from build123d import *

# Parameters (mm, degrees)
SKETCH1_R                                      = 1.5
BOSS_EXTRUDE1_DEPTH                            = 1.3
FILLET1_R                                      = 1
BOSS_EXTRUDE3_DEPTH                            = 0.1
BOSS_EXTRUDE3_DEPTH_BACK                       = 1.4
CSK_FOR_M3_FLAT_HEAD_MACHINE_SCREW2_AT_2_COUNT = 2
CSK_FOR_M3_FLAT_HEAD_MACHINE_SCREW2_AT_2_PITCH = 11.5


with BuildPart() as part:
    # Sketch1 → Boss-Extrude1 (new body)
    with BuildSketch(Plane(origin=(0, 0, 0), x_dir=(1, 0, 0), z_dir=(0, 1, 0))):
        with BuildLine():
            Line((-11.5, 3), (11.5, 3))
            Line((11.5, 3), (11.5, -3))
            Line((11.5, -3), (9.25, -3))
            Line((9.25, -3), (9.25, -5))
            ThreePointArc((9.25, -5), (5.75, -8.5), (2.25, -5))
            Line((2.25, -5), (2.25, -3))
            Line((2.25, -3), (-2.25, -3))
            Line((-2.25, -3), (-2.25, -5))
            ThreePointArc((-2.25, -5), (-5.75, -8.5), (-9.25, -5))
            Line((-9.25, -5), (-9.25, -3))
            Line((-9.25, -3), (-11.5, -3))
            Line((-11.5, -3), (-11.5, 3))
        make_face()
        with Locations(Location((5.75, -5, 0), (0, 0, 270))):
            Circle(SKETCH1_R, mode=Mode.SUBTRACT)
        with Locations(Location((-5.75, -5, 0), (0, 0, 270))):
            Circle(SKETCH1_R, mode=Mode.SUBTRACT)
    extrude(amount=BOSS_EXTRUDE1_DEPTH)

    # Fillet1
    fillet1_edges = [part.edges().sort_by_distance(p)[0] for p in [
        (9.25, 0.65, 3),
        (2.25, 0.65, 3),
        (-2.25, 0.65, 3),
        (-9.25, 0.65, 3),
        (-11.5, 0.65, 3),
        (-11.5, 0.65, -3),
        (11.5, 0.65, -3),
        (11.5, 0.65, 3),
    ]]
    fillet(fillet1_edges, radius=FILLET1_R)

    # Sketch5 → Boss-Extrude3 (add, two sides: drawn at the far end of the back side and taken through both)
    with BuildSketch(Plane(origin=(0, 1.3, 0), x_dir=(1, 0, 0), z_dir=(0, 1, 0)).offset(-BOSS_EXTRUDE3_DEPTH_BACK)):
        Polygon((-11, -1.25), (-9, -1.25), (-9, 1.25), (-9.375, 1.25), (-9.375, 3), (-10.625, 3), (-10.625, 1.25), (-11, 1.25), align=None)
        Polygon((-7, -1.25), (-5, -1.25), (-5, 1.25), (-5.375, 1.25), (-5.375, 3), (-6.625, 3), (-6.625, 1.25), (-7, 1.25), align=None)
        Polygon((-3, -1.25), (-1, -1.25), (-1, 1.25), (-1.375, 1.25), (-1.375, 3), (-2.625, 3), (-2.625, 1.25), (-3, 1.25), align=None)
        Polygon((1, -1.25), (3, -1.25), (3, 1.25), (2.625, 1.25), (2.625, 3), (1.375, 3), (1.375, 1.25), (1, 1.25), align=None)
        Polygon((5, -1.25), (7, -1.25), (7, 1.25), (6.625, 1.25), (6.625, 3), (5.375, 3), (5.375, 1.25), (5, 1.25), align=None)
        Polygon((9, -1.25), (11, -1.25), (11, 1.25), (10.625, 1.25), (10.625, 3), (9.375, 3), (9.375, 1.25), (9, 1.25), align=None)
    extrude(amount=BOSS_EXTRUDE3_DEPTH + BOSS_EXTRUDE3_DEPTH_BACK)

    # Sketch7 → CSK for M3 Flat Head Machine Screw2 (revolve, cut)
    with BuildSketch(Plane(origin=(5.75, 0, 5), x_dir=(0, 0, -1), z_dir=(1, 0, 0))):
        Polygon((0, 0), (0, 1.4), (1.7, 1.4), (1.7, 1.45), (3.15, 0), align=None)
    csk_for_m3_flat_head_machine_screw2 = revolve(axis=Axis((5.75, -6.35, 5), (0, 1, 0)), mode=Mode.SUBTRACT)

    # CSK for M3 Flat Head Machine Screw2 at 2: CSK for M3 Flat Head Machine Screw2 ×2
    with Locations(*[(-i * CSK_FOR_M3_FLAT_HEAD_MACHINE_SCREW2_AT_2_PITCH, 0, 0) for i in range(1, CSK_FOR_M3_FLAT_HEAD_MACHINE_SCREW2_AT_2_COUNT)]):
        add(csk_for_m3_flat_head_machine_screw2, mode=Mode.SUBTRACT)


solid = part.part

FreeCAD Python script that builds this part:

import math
import FreeCAD as App
import Part
import Sketcher
Q = App.Units.Quantity


def edges_at(feature, points):
    """Names of the edges that pass closest to the given points."""
    edges = feature.Shape.Edges
    near = lambda p: min(range(len(edges)), key=lambda i: edges[i].distToShape(Part.Vertex(*p))[0])
    return sorted({f"Edge{near(p) + 1}" for p in points})

doc = App.newDocument("Part")
params = doc.addObject("Spreadsheet::Sheet", "Params")
for row, (alias, value) in enumerate([
    ("sketch1_diameter", "3 mm"),
    ("sketch1_radius", "3.5 mm"),
    ("sketch1_width", "23 mm"),
    ("sketch1_height", "6 mm"),
    ("sketch1_height2", "2 mm"),
    ("pad1_length", "1.3 mm"),
    ("fillet_radius", "1 mm"),
    ("sketch2_width", "2 mm"),
    ("sketch2_height", "2.5 mm"),
    ("sketch2_width2", "1.25 mm"),
    ("pad2_length", "0.1 mm"),
    ("pad2_length2", "1.4 mm"),
    ("sketch3_width", "1.4 mm"),
    ("sketch3_height", "1.7 mm"),
    ("sketch3_width2", "0.05 mm"),
    ("groove_angle", "360 deg"),
    ("linearpattern_pitch", "11.5 mm"),
], start=1):
    params.set(f"A{row}", alias)
    params.set(f"B{row}", "=" + value)
    params.setAlias(f"B{row}", alias)

body = doc.addObject("PartDesign::Body", "Body")

# Sketch on XZ plane
sketch1 = body.newObject("Sketcher::SketchObject", "Sketch")
sketch1.AttachmentSupport = (doc.getObject("XZ_Plane"), [""])
sketch1.MapMode = "FlatFace"
sketch1.addGeometry(Part.LineSegment(App.Vector(11.5, -3, 0), App.Vector(-11.5, -3, 0)), False)
sketch1.addGeometry(Part.LineSegment(App.Vector(-11.5, -3, 0), App.Vector(-11.5, 3, 0)), False)
sketch1.addGeometry(Part.LineSegment(App.Vector(-11.5, 3, 0), App.Vector(-9.25, 3, 0)), False)
sketch1.addGeometry(Part.LineSegment(App.Vector(-9.25, 3, 0), App.Vector(-9.25, 5, 0)), False)
sketch1.addGeometry(Part.ArcOfCircle(Part.Circle(App.Vector(-5.75, 5, 0), App.Vector(0, 0, 1), 3.5), math.radians(0), math.radians(180)), False)
sketch1.addGeometry(Part.LineSegment(App.Vector(-2.25, 5, 0), App.Vector(-2.25, 3, 0)), False)
sketch1.addGeometry(Part.LineSegment(App.Vector(-2.25, 3, 0), App.Vector(2.25, 3, 0)), False)
sketch1.addGeometry(Part.LineSegment(App.Vector(2.25, 3, 0), App.Vector(2.25, 5, 0)), False)
sketch1.addGeometry(Part.ArcOfCircle(Part.Circle(App.Vector(5.75, 5, 0), App.Vector(0, 0, 1), 3.5), math.radians(0), math.radians(180)), False)
sketch1.addGeometry(Part.LineSegment(App.Vector(9.25, 5, 0), App.Vector(9.25, 3, 0)), False)
sketch1.addGeometry(Part.LineSegment(App.Vector(9.25, 3, 0), App.Vector(11.5, 3, 0)), False)
sketch1.addGeometry(Part.LineSegment(App.Vector(11.5, 3, 0), App.Vector(11.5, -3, 0)), False)
sketch1.addGeometry(Part.Circle(App.Vector(5.75, 5, 0), App.Vector(0, 0, 1), 1.5), False)
sketch1.addGeometry(Part.Circle(App.Vector(-5.75, 5, 0), App.Vector(0, 0, 1), 1.5), False)
sketch1.addConstraint(Sketcher.Constraint("Coincident", 0, 2, 1, 1))
sketch1.addConstraint(Sketcher.Constraint("Coincident", 1, 2, 2, 1))
sketch1.addConstraint(Sketcher.Constraint("Coincident", 2, 2, 3, 1))
sketch1.addConstraint(Sketcher.Constraint("Tangent", 3, 2, 4, 2))
sketch1.addConstraint(Sketcher.Constraint("Tangent", 4, 1, 5, 1))
sketch1.addConstraint(Sketcher.Constraint("Coincident", 5, 2, 6, 1))
sketch1.addConstraint(Sketcher.Constraint("Coincident", 6, 2, 7, 1))
sketch1.addConstraint(Sketcher.Constraint("Tangent", 7, 2, 8, 2))
sketch1.addConstraint(Sketcher.Constraint("Tangent", 8, 1, 9, 1))
sketch1.addConstraint(Sketcher.Constraint("Coincident", 9, 2, 10, 1))
sketch1.addConstraint(Sketcher.Constraint("Coincident", 10, 2, 11, 1))
sketch1.addConstraint(Sketcher.Constraint("Coincident", 11, 2, 0, 1))
sketch1.addConstraint(Sketcher.Constraint("Horizontal", 0))
sketch1.addConstraint(Sketcher.Constraint("Vertical", 1))
sketch1.addConstraint(Sketcher.Constraint("Horizontal", 2))
sketch1.addConstraint(Sketcher.Constraint("Vertical", 3))
sketch1.addConstraint(Sketcher.Constraint("Vertical", 5))
sketch1.addConstraint(Sketcher.Constraint("Horizontal", 6))
sketch1.addConstraint(Sketcher.Constraint("Vertical", 7))
sketch1.addConstraint(Sketcher.Constraint("Vertical", 9))
sketch1.addConstraint(Sketcher.Constraint("Horizontal", 10))
sketch1.addConstraint(Sketcher.Constraint("Vertical", 11))
sketch1.addConstraint(Sketcher.Constraint("Coincident", 12, 3, 8, 3))
sketch1.addConstraint(Sketcher.Constraint("Coincident", 13, 3, 4, 3))
sketch1.addConstraint(Sketcher.Constraint("Equal", 4, 8))
sketch1.addConstraint(Sketcher.Constraint("Equal", 12, 13))
sketch1.addConstraint(Sketcher.Constraint("Symmetric", 0, 2, 10, 2, -1, 1))
sketch1.addConstraint(Sketcher.Constraint("Symmetric", 4, 3, 8, 3, -2))
sketch1.addConstraint(Sketcher.Constraint("Horizontal", 2, 2, 5, 2))
sketch1.addConstraint(Sketcher.Constraint("Horizontal", 6, 2, 9, 2))
sketch1.addConstraint(Sketcher.Constraint("Diameter", 12, 3.0))
sketch1.addConstraint(Sketcher.Constraint("Radius", 4, 3.5))
sketch1.addConstraint(Sketcher.Constraint("DistanceX", 0, 2, 0, 1, 23.0))
sketch1.addConstraint(Sketcher.Constraint("DistanceY", 1, 1, 1, 2, 6.0))
sketch1.addConstraint(Sketcher.Constraint("DistanceY", 3, 1, 3, 2, 2.0))
sketch1.addConstraint(Sketcher.Constraint("DistanceX", 6, 1, 6, 2, 4.5))
sketch1.setExpression("Constraints[30]", "Params.sketch1_diameter")
sketch1.setExpression("Constraints[31]", "Params.sketch1_radius")
sketch1.setExpression("Constraints[32]", "Params.sketch1_width")
sketch1.setExpression("Constraints[33]", "Params.sketch1_height")
sketch1.setExpression("Constraints[34]", "Params.sketch1_height2")
pad1 = body.newObject("PartDesign::Pad", "Pad")
pad1.Profile = sketch1
pad1.setExpression("Length", "Params.pad1_length")
pad1.Reversed = True
doc.recompute()

fillet = body.newObject("PartDesign::Fillet", "Fillet")
fillet.Base = (pad1, edges_at(pad1, [
    (9.25, 0.65, 3),
    (2.25, 0.65, 3),
    (-2.25, 0.65, 3),
    (-9.25, 0.65, 3),
    (-11.5, 0.65, 3),
    (-11.5, 0.65, -3),
    (11.5, 0.65, -3),
    (11.5, 0.65, 3),
]))
fillet.setExpression("Radius", "Params.fillet_radius")

# Sketch on XZ plane
sketch2 = body.newObject("Sketcher::SketchObject", "Sketch001")
sketch2.AttachmentSupport = (doc.getObject("XZ_Plane"), [""])
sketch2.MapMode = "FlatFace"
sketch2.AttachmentOffset = App.Placement(App.Vector(0, 0, -1.3), App.Rotation())
sketch2.addGeometry(Part.LineSegment(App.Vector(-11, 1.25, 0), App.Vector(-9, 1.25, 0)), False)
sketch2.addGeometry(Part.LineSegment(App.Vector(-9, 1.25, 0), App.Vector(-9, -1.25, 0)), False)
sketch2.addGeometry(Part.LineSegment(App.Vector(-9, -1.25, 0), App.Vector(-9.375, -1.25, 0)), False)
sketch2.addGeometry(Part.LineSegment(App.Vector(-9.375, -1.25, 0), App.Vector(-9.375, -3, 0)), False)
sketch2.addGeometry(Part.LineSegment(App.Vector(-9.375, -3, 0), App.Vector(-10.625, -3, 0)), False)
sketch2.addGeometry(Part.LineSegment(App.Vector(-10.625, -3, 0), App.Vector(-10.625, -1.25, 0)), False)
sketch2.addGeometry(Part.LineSegment(App.Vector(-10.625, -1.25, 0), App.Vector(-11, -1.25, 0)), False)
sketch2.addGeometry(Part.LineSegment(App.Vector(-11, -1.25, 0), App.Vector(-11, 1.25, 0)), False)
sketch2.addGeometry(Part.LineSegment(App.Vector(-7, 1.25, 0), App.Vector(-5, 1.25, 0)), False)
sketch2.addGeometry(Part.LineSegment(App.Vector(-5, 1.25, 0), App.Vector(-5, -1.25, 0)), False)
sketch2.addGeometry(Part.LineSegment(App.Vector(-5, -1.25, 0), App.Vector(-5.375, -1.25, 0)), False)
sketch2.addGeometry(Part.LineSegment(App.Vector(-5.375, -1.25, 0), App.Vector(-5.375, -3, 0)), False)
sketch2.addGeometry(Part.LineSegment(App.Vector(-5.375, -3, 0), App.Vector(-6.625, -3, 0)), False)
sketch2.addGeometry(Part.LineSegment(App.Vector(-6.625, -3, 0), App.Vector(-6.625, -1.25, 0)), False)
sketch2.addGeometry(Part.LineSegment(App.Vector(-6.625, -1.25, 0), App.Vector(-7, -1.25, 0)), False)
sketch2.addGeometry(Part.LineSegment(App.Vector(-7, -1.25, 0), App.Vector(-7, 1.25, 0)), False)
sketch2.addGeometry(Part.LineSegment(App.Vector(-3, 1.25, 0), App.Vector(-1, 1.25, 0)), False)
sketch2.addGeometry(Part.LineSegment(App.Vector(-1, 1.25, 0), App.Vector(-1, -1.25, 0)), False)
sketch2.addGeometry(Part.LineSegment(App.Vector(-1, -1.25, 0), App.Vector(-1.375, -1.25, 0)), False)
sketch2.addGeometry(Part.LineSegment(App.Vector(-1.375, -1.25, 0), App.Vector(-1.375, -3, 0)), False)
sketch2.addGeometry(Part.LineSegment(App.Vector(-1.375, -3, 0), App.Vector(-2.625, -3, 0)), False)
sketch2.addGeometry(Part.LineSegment(App.Vector(-2.625, -3, 0), App.Vector(-2.625, -1.25, 0)), False)
sketch2.addGeometry(Part.LineSegment(App.Vector(-2.625, -1.25, 0), App.Vector(-3, -1.25, 0)), False)
sketch2.addGeometry(Part.LineSegment(App.Vector(-3, -1.25, 0), App.Vector(-3, 1.25, 0)), False)
sketch2.addGeometry(Part.LineSegment(App.Vector(1, 1.25, 0), App.Vector(3, 1.25, 0)), False)
sketch2.addGeometry(Part.LineSegment(App.Vector(3, 1.25, 0), App.Vector(3, -1.25, 0)), False)
sketch2.addGeometry(Part.LineSegment(App.Vector(3, -1.25, 0), App.Vector(2.625, -1.25, 0)), False)
sketch2.addGeometry(Part.LineSegment(App.Vector(2.625, -1.25, 0), App.Vector(2.625, -3, 0)), False)
sketch2.addGeometry(Part.LineSegment(App.Vector(2.625, -3, 0), App.Vector(1.375, -3, 0)), False)
sketch2.addGeometry(Part.LineSegment(App.Vector(1.375, -3, 0), App.Vector(1.375, -1.25, 0)), False)
sketch2.addGeometry(Part.LineSegment(App.Vector(1.375, -1.25, 0), App.Vector(1, -1.25, 0)), False)
sketch2.addGeometry(Part.LineSegment(App.Vector(1, -1.25, 0), App.Vector(1, 1.25, 0)), False)
sketch2.addGeometry(Part.LineSegment(App.Vector(5, 1.25, 0), App.Vector(7, 1.25, 0)), False)
sketch2.addGeometry(Part.LineSegment(App.Vector(7, 1.25, 0), App.Vector(7, -1.25, 0)), False)
sketch2.addGeometry(Part.LineSegment(App.Vector(7, -1.25, 0), App.Vector(6.625, -1.25, 0)), False)
sketch2.addGeometry(Part.LineSegment(App.Vector(6.625, -1.25, 0), App.Vector(6.625, -3, 0)), False)
sketch2.addGeometry(Part.LineSegment(App.Vector(6.625, -3, 0), App.Vector(5.375, -3, 0)), False)
sketch2.addGeometry(Part.LineSegment(App.Vector(5.375, -3, 0), App.Vector(5.375, -1.25, 0)), False)
sketch2.addGeometry(Part.LineSegment(App.Vector(5.375, -1.25, 0), App.Vector(5, -1.25, 0)), False)
sketch2.addGeometry(Part.LineSegment(App.Vector(5, -1.25, 0), App.Vector(5, 1.25, 0)), False)
sketch2.addGeometry(Part.LineSegment(App.Vector(9, 1.25, 0), App.Vector(11, 1.25, 0)), False)
sketch2.addGeometry(Part.LineSegment(App.Vector(11, 1.25, 0), App.Vector(11, -1.25, 0)), False)
sketch2.addGeometry(Part.LineSegment(App.Vector(11, -1.25, 0), App.Vector(10.625, -1.25, 0)), False)
sketch2.addGeometry(Part.LineSegment(App.Vector(10.625, -1.25, 0), App.Vector(10.625, -3, 0)), False)
sketch2.addGeometry(Part.LineSegment(App.Vector(10.625, -3, 0), App.Vector(9.375, -3, 0)), False)
sketch2.addGeometry(Part.LineSegment(App.Vector(9.375, -3, 0), App.Vector(9.375, -1.25, 0)), False)
sketch2.addGeometry(Part.LineSegment(App.Vector(9.375, -1.25, 0), App.Vector(9, -1.25, 0)), False)
sketch2.addGeometry(Part.LineSegment(App.Vector(9, -1.25, 0), App.Vector(9, 1.25, 0)), False)
sketch2.addConstraint(Sketcher.Constraint("Coincident", 0, 2, 1, 1))
sketch2.addConstraint(Sketcher.Constraint("Coincident", 1, 2, 2, 1))
sketch2.addConstraint(Sketcher.Constraint("Coincident", 2, 2, 3, 1))
sketch2.addConstraint(Sketcher.Constraint("Coincident", 3, 2, 4, 1))
sketch2.addConstraint(Sketcher.Constraint("Coincident", 4, 2, 5, 1))
sketch2.addConstraint(Sketcher.Constraint("Coincident", 5, 2, 6, 1))
sketch2.addConstraint(Sketcher.Constraint("Coincident", 6, 2, 7, 1))
sketch2.addConstraint(Sketcher.Constraint("Coincident", 7, 2, 0, 1))
sketch2.addConstraint(Sketcher.Constraint("Coincident", 8, 2, 9, 1))
sketch2.addConstraint(Sketcher.Constraint("Coincident", 9, 2, 10, 1))
sketch2.addConstraint(Sketcher.Constraint("Coincident", 10, 2, 11, 1))
sketch2.addConstraint(Sketcher.Constraint("Coincident", 11, 2, 12, 1))
sketch2.addConstraint(Sketcher.Constraint("Coincident", 12, 2, 13, 1))
sketch2.addConstraint(Sketcher.Constraint("Coincident", 13, 2, 14, 1))
sketch2.addConstraint(Sketcher.Constraint("Coincident", 14, 2, 15, 1))
sketch2.addConstraint(Sketcher.Constraint("Coincident", 15, 2, 8, 1))
sketch2.addConstraint(Sketcher.Constraint("Coincident", 16, 2, 17, 1))
sketch2.addConstraint(Sketcher.Constraint("Coincident", 17, 2, 18, 1))
sketch2.addConstraint(Sketcher.Constraint("Coincident", 18, 2, 19, 1))
sketch2.addConstraint(Sketcher.Constraint("Coincident", 19, 2, 20, 1))
sketch2.addConstraint(Sketcher.Constraint("Coincident", 20, 2, 21, 1))
sketch2.addConstraint(Sketcher.Constraint("Coincident", 21, 2, 22, 1))
sketch2.addConstraint(Sketcher.Constraint("Coincident", 22, 2, 23, 1))
sketch2.addConstraint(Sketcher.Constraint("Coincident", 23, 2, 16, 1))
sketch2.addConstraint(Sketcher.Constraint("Coincident", 24, 2, 25, 1))
sketch2.addConstraint(Sketcher.Constraint("Coincident", 25, 2, 26, 1))
sketch2.addConstraint(Sketcher.Constraint("Coincident", 26, 2, 27, 1))
sketch2.addConstraint(Sketcher.Constraint("Coincident", 27, 2, 28, 1))
sketch2.addConstraint(Sketcher.Constraint("Coincident", 28, 2, 29, 1))
sketch2.addConstraint(Sketcher.Constraint("Coincident", 29, 2, 30, 1))
sketch2.addConstraint(Sketcher.Constraint("Coincident", 30, 2, 31, 1))
sketch2.addConstraint(Sketcher.Constraint("Coincident", 31, 2, 24, 1))
sketch2.addConstraint(Sketcher.Constraint("Coincident", 32, 2, 33, 1))
sketch2.addConstraint(Sketcher.Constraint("Coincident", 33, 2, 34, 1))
sketch2.addConstraint(Sketcher.Constraint("Coincident", 34, 2, 35, 1))
sketch2.addConstraint(Sketcher.Constraint("Coincident", 35, 2, 36, 1))
sketch2.addConstraint(Sketcher.Constraint("Coincident", 36, 2, 37, 1))
sketch2.addConstraint(Sketcher.Constraint("Coincident", 37, 2, 38, 1))
sketch2.addConstraint(Sketcher.Constraint("Coincident", 38, 2, 39, 1))
sketch2.addConstraint(Sketcher.Constraint("Coincident", 39, 2, 32, 1))
sketch2.addConstraint(Sketcher.Constraint("Coincident", 40, 2, 41, 1))
sketch2.addConstraint(Sketcher.Constraint("Coincident", 41, 2, 42, 1))
sketch2.addConstraint(Sketcher.Constraint("Coincident", 42, 2, 43, 1))
sketch2.addConstraint(Sketcher.Constraint("Coincident", 43, 2, 44, 1))
sketch2.addConstraint(Sketcher.Constraint("Coincident", 44, 2, 45, 1))
sketch2.addConstraint(Sketcher.Constraint("Coincident", 45, 2, 46, 1))
sketch2.addConstraint(Sketcher.Constraint("Coincident", 46, 2, 47, 1))
sketch2.addConstraint(Sketcher.Constraint("Coincident", 47, 2, 40, 1))
sketch2.addConstraint(Sketcher.Constraint("Horizontal", 0))
sketch2.addConstraint(Sketcher.Constraint("Vertical", 1))
sketch2.addConstraint(Sketcher.Constraint("Horizontal", 2))
sketch2.addConstraint(Sketcher.Constraint("Vertical", 3))
sketch2.addConstraint(Sketcher.Constraint("Horizontal", 4))
sketch2.addConstraint(Sketcher.Constraint("Vertical", 5))
sketch2.addConstraint(Sketcher.Constraint("Horizontal", 6))
sketch2.addConstraint(Sketcher.Constraint("Vertical", 7))
sketch2.addConstraint(Sketcher.Constraint("Horizontal", 8))
sketch2.addConstraint(Sketcher.Constraint("Vertical", 9))
sketch2.addConstraint(Sketcher.Constraint("Horizontal", 10))
sketch2.addConstraint(Sketcher.Constraint("Vertical", 11))
sketch2.addConstraint(Sketcher.Constraint("Horizontal", 12))
sketch2.addConstraint(Sketcher.Constraint("Vertical", 13))
sketch2.addConstraint(Sketcher.Constraint("Horizontal", 14))
sketch2.addConstraint(Sketcher.Constraint("Vertical", 15))
sketch2.addConstraint(Sketcher.Constraint("Horizontal", 16))
sketch2.addConstraint(Sketcher.Constraint("Vertical", 17))
sketch2.addConstraint(Sketcher.Constraint("Horizontal", 18))
sketch2.addConstraint(Sketcher.Constraint("Vertical", 19))
sketch2.addConstraint(Sketcher.Constraint("Horizontal", 20))
sketch2.addConstraint(Sketcher.Constraint("Vertical", 21))
sketch2.addConstraint(Sketcher.Constraint("Horizontal", 22))
sketch2.addConstraint(Sketcher.Constraint("Vertical", 23))
sketch2.addConstraint(Sketcher.Constraint("Horizontal", 24))
sketch2.addConstraint(Sketcher.Constraint("Vertical", 25))
sketch2.addConstraint(Sketcher.Constraint("Horizontal", 26))
sketch2.addConstraint(Sketcher.Constraint("Vertical", 27))
sketch2.addConstraint(Sketcher.Constraint("Horizontal", 28))
sketch2.addConstraint(Sketcher.Constraint("Vertical", 29))
sketch2.addConstraint(Sketcher.Constraint("Horizontal", 30))
sketch2.addConstraint(Sketcher.Constraint("Vertical", 31))
sketch2.addConstraint(Sketcher.Constraint("Horizontal", 32))
sketch2.addConstraint(Sketcher.Constraint("Vertical", 33))
sketch2.addConstraint(Sketcher.Constraint("Horizontal", 34))
sketch2.addConstraint(Sketcher.Constraint("Vertical", 35))
sketch2.addConstraint(Sketcher.Constraint("Horizontal", 36))
sketch2.addConstraint(Sketcher.Constraint("Vertical", 37))
sketch2.addConstraint(Sketcher.Constraint("Horizontal", 38))
sketch2.addConstraint(Sketcher.Constraint("Vertical", 39))
sketch2.addConstraint(Sketcher.Constraint("Horizontal", 40))
sketch2.addConstraint(Sketcher.Constraint("Vertical", 41))
sketch2.addConstraint(Sketcher.Constraint("Horizontal", 42))
sketch2.addConstraint(Sketcher.Constraint("Vertical", 43))
sketch2.addConstraint(Sketcher.Constraint("Horizontal", 44))
sketch2.addConstraint(Sketcher.Constraint("Vertical", 45))
sketch2.addConstraint(Sketcher.Constraint("Horizontal", 46))
sketch2.addConstraint(Sketcher.Constraint("Vertical", 47))
sketch2.addConstraint(Sketcher.Constraint("Symmetric", 22, 2, 24, 2, -1, 1))
sketch2.addConstraint(Sketcher.Constraint("Symmetric", 16, 2, 30, 2, -1, 1))
sketch2.addConstraint(Sketcher.Constraint("Symmetric", 14, 2, 32, 2, -1, 1))
sketch2.addConstraint(Sketcher.Constraint("Symmetric", 8, 2, 38, 2, -1, 1))
sketch2.addConstraint(Sketcher.Constraint("Symmetric", 6, 2, 40, 2, -1, 1))
sketch2.addConstraint(Sketcher.Constraint("Symmetric", 0, 2, 46, 2, -1, 1))
sketch2.addConstraint(Sketcher.Constraint("Symmetric", 21, 2, 26, 2, -2))
sketch2.addConstraint(Sketcher.Constraint("Symmetric", 19, 2, 28, 2, -2))
sketch2.addConstraint(Sketcher.Constraint("Symmetric", 13, 2, 34, 2, -2))
sketch2.addConstraint(Sketcher.Constraint("Symmetric", 11, 2, 36, 2, -2))
sketch2.addConstraint(Sketcher.Constraint("Symmetric", 5, 2, 42, 2, -2))
sketch2.addConstraint(Sketcher.Constraint("Symmetric", 3, 2, 44, 2, -2))
sketch2.addConstraint(Sketcher.Constraint("Horizontal", 2, 2, 5, 2))
sketch2.addConstraint(Sketcher.Constraint("Horizontal", 7, 2, 8, 2))
sketch2.addConstraint(Sketcher.Constraint("Horizontal", 6, 2, 9, 2))
sketch2.addConstraint(Sketcher.Constraint("Horizontal", 4, 2, 11, 2))
sketch2.addConstraint(Sketcher.Constraint("Horizontal", 10, 2, 13, 2))
sketch2.addConstraint(Sketcher.Constraint("Horizontal", 15, 2, 16, 2))
sketch2.addConstraint(Sketcher.Constraint("Horizontal", 14, 2, 17, 2))
sketch2.addConstraint(Sketcher.Constraint("Horizontal", 12, 2, 19, 2))
sketch2.addConstraint(Sketcher.Constraint("Horizontal", 18, 2, 21, 2))
sketch2.addConstraint(Sketcher.Constraint("Horizontal", 23, 2, 24, 2))
sketch2.addConstraint(Sketcher.Constraint("Equal", 2, 6))
sketch2.addConstraint(Sketcher.Constraint("Equal", 0, 8))
sketch2.addConstraint(Sketcher.Constraint("Equal", 6, 10))
sketch2.addConstraint(Sketcher.Constraint("Equal", 4, 12))
sketch2.addConstraint(Sketcher.Constraint("Equal", 8, 16))
sketch2.addConstraint(Sketcher.Constraint("Equal", 14, 18))
sketch2.addConstraint(Sketcher.Constraint("Equal", 12, 20))
sketch2.addConstraint(Sketcher.Constraint("DistanceX", 0, 1, 0, 2, 2.0))
sketch2.addConstraint(Sketcher.Constraint("DistanceY", 1, 2, 1, 1, 2.5))
sketch2.addConstraint(Sketcher.Constraint("DistanceX", 0, 2, -1, 1, 9.0))
sketch2.addConstraint(Sketcher.Constraint("DistanceY", 3, 2, -1, 1, 3.0))
sketch2.addConstraint(Sketcher.Constraint("DistanceX", 8, 2, -1, 1, 5.0))
sketch2.addConstraint(Sketcher.Constraint("DistanceX", 16, 2, -1, 1, 1.0))
sketch2.addConstraint(Sketcher.Constraint("DistanceX", 4, 2, 4, 1, 1.25))
sketch2.setExpression("Constraints[125]", "Params.sketch2_width")
sketch2.setExpression("Constraints[126]", "Params.sketch2_height")
sketch2.setExpression("Constraints[131]", "Params.sketch2_width2")
pad2 = body.newObject("PartDesign::Pad", "Pad001")
pad2.Profile = sketch2
pad2.Type = "TwoLengths"
pad2.setExpression("Length", "Params.pad2_length")
pad2.setExpression("Length2", "Params.pad2_length2")
pad2.Reversed = True

# Sketch on YZ plane
sketch3 = body.newObject("Sketcher::SketchObject", "Sketch002")
sketch3.AttachmentSupport = (doc.getObject("YZ_Plane"), [""])
sketch3.MapMode = "FlatFace"
sketch3.AttachmentOffset = App.Placement(App.Vector(0, 0, 5.75), App.Rotation())
sketch3.addGeometry(Part.LineSegment(App.Vector(1.4, 5, 0), App.Vector(0, 5, 0)), False)
sketch3.addGeometry(Part.LineSegment(App.Vector(0, 5, 0), App.Vector(0, 1.85, 0)), False)
sketch3.addGeometry(Part.LineSegment(App.Vector(0, 1.85, 0), App.Vector(1.45, 3.3, 0)), False)
sketch3.addGeometry(Part.LineSegment(App.Vector(1.45, 3.3, 0), App.Vector(1.4, 3.3, 0)), False)
sketch3.addGeometry(Part.LineSegment(App.Vector(1.4, 3.3, 0), App.Vector(1.4, 5, 0)), False)
sketch3.addGeometry(Part.LineSegment(App.Vector(0, 5, 0), App.Vector(1.45, 5, 0)), True)  # axis
sketch3.addConstraint(Sketcher.Constraint("Coincident", 0, 2, 1, 1))
sketch3.addConstraint(Sketcher.Constraint("Coincident", 1, 2, 2, 1))
sketch3.addConstraint(Sketcher.Constraint("Coincident", 2, 2, 3, 1))
sketch3.addConstraint(Sketcher.Constraint("Coincident", 3, 2, 4, 1))
sketch3.addConstraint(Sketcher.Constraint("Coincident", 4, 2, 0, 1))
sketch3.addConstraint(Sketcher.Constraint("Horizontal", 0))
sketch3.addConstraint(Sketcher.Constraint("Vertical", 1))
sketch3.addConstraint(Sketcher.Constraint("Horizontal", 3))
sketch3.addConstraint(Sketcher.Constraint("Vertical", 4))
sketch3.addConstraint(Sketcher.Constraint("Horizontal", 5))
sketch3.addConstraint(Sketcher.Constraint("Coincident", 5, 1, 0, 2))
sketch3.addConstraint(Sketcher.Constraint("PointOnObject", 0, 2, -2))
sketch3.addConstraint(Sketcher.Constraint("Vertical", 2, 2, 5, 2))
sketch3.addConstraint(Sketcher.Constraint("Angle", 2, Q("45 deg")))
sketch3.addConstraint(Sketcher.Constraint("DistanceX", 0, 2, 0, 1, 1.4))
sketch3.addConstraint(Sketcher.Constraint("DistanceY", 4, 1, 4, 2, 1.7))
sketch3.addConstraint(Sketcher.Constraint("DistanceY", -1, 1, 0, 2, 5.0))
sketch3.addConstraint(Sketcher.Constraint("DistanceX", 3, 2, 3, 1, 0.05))
sketch3.setExpression("Constraints[14]", "Params.sketch3_width")
sketch3.setExpression("Constraints[15]", "Params.sketch3_height")
sketch3.setExpression("Constraints[17]", "Params.sketch3_width2")
groove = body.newObject("PartDesign::Groove", "Groove")
groove.Profile = sketch3
groove.ReferenceAxis = (sketch3, ["Axis0"])
groove.setExpression("Angle", "Params.groove_angle")
doc.recompute()

linearpattern = body.newObject("PartDesign::LinearPattern", "LinearPattern")
linearpattern.Originals = [groove]
linearpattern.Direction = (doc.getObject("X_Axis"), [""])
linearpattern.Mode = "offset"
linearpattern.setExpression("Offset", "Params.linearpattern_pitch")
linearpattern.Occurrences = 2
linearpattern.Reversed = True
body.Tip = linearpattern

doc.recompute()
